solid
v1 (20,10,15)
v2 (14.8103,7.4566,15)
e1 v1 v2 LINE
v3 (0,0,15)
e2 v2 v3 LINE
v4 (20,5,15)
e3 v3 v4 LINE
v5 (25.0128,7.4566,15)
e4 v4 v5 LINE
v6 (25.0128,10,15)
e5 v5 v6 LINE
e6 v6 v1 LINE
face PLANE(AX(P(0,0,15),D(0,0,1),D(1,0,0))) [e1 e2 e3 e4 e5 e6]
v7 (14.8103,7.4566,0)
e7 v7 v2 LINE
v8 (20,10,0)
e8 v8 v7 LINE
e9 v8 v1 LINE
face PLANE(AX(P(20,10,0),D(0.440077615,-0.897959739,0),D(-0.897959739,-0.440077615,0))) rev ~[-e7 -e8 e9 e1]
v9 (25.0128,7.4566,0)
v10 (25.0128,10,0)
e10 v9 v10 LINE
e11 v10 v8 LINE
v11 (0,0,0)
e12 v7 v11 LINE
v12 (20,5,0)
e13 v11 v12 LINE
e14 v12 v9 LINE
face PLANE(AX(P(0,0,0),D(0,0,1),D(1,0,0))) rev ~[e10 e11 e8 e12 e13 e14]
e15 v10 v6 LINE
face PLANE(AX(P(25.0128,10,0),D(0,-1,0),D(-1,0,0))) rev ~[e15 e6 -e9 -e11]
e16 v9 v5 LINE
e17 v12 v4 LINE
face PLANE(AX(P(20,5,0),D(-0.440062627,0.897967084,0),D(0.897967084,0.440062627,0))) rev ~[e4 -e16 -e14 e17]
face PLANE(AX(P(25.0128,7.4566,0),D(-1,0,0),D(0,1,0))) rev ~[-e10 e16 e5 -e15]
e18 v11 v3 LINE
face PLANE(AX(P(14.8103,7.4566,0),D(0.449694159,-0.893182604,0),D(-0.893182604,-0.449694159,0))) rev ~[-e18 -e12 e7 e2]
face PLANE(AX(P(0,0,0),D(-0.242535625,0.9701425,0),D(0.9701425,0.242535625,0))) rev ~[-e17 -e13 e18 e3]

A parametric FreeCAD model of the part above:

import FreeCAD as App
import Part
import Sketcher
from FreeCAD import Vector
Q = App.Units.Quantity

doc = App.newDocument("Part")
body = doc.addObject("PartDesign::Body", "Body")

# Sketch on XY plane
sketch1 = body.newObject("Sketcher::SketchObject", "Sketch")
sketch1.AttachmentSupport = (doc.getObject("XY_Plane"), [""])
sketch1.MapMode = "FlatFace"
sketch1.addGeometry([
    Part.LineSegment(Vector(14.8, 7.5, 0), Vector(0, 0, 0)),  # 0
    Part.LineSegment(Vector(0, 0, 0), Vector(20, 5, 0)),  # 1
    Part.LineSegment(Vector(20, 5, 0), Vector(25, 7.5, 0)),  # 2
    Part.LineSegment(Vector(25, 7.5, 0), Vector(25, 10, 0)),  # 3
    Part.LineSegment(Vector(25, 10, 0), Vector(20, 10, 0)),  # 4
    Part.LineSegment(Vector(20, 10, 0), Vector(14.8, 7.5, 0)),  # 5
], False)
sketch1.addConstraint([
    Sketcher.Constraint("Coincident", 0, 2, 1, 1),
    Sketcher.Constraint("Coincident", 1, 2, 2, 1),
    Sketcher.Constraint("Coincident", 2, 2, 3, 1),
    Sketcher.Constraint("Coincident", 3, 2, 4, 1),
    Sketcher.Constraint("Coincident", 4, 2, 5, 1),
    Sketcher.Constraint("Coincident", 5, 2, 0, 1),
    Sketcher.Constraint("Vertical", 3),
    Sketcher.Constraint("Horizontal", 4),
    Sketcher.Constraint("Coincident", 0, 2, -1, 1),
    Sketcher.Constraint("Parallel", 2, 5),
    Sketcher.Constraint("Horizontal", 2, 2, 5, 2),
    Sketcher.Constraint("Vertical", 1, 2, 4, 2),
    Sketcher.Constraint("DistanceX", -1, 1, 1, 2, 20.0),
    Sketcher.Constraint("DistanceY", -1, 1, 1, 2, 5.0),
    Sketcher.Constraint("DistanceY", -1, 1, 3, 2, 10.0),
    Sketcher.Constraint("Angle", 5, Q("-153.8912 deg")),
    Sketcher.Constraint("DistanceX", 4, 2, 4, 1, 5.0128),
])
pad1 = body.newObject("PartDesign::Pad", "Pad")
pad1.Profile = sketch1
pad1.Length = 15

doc.recompute()
